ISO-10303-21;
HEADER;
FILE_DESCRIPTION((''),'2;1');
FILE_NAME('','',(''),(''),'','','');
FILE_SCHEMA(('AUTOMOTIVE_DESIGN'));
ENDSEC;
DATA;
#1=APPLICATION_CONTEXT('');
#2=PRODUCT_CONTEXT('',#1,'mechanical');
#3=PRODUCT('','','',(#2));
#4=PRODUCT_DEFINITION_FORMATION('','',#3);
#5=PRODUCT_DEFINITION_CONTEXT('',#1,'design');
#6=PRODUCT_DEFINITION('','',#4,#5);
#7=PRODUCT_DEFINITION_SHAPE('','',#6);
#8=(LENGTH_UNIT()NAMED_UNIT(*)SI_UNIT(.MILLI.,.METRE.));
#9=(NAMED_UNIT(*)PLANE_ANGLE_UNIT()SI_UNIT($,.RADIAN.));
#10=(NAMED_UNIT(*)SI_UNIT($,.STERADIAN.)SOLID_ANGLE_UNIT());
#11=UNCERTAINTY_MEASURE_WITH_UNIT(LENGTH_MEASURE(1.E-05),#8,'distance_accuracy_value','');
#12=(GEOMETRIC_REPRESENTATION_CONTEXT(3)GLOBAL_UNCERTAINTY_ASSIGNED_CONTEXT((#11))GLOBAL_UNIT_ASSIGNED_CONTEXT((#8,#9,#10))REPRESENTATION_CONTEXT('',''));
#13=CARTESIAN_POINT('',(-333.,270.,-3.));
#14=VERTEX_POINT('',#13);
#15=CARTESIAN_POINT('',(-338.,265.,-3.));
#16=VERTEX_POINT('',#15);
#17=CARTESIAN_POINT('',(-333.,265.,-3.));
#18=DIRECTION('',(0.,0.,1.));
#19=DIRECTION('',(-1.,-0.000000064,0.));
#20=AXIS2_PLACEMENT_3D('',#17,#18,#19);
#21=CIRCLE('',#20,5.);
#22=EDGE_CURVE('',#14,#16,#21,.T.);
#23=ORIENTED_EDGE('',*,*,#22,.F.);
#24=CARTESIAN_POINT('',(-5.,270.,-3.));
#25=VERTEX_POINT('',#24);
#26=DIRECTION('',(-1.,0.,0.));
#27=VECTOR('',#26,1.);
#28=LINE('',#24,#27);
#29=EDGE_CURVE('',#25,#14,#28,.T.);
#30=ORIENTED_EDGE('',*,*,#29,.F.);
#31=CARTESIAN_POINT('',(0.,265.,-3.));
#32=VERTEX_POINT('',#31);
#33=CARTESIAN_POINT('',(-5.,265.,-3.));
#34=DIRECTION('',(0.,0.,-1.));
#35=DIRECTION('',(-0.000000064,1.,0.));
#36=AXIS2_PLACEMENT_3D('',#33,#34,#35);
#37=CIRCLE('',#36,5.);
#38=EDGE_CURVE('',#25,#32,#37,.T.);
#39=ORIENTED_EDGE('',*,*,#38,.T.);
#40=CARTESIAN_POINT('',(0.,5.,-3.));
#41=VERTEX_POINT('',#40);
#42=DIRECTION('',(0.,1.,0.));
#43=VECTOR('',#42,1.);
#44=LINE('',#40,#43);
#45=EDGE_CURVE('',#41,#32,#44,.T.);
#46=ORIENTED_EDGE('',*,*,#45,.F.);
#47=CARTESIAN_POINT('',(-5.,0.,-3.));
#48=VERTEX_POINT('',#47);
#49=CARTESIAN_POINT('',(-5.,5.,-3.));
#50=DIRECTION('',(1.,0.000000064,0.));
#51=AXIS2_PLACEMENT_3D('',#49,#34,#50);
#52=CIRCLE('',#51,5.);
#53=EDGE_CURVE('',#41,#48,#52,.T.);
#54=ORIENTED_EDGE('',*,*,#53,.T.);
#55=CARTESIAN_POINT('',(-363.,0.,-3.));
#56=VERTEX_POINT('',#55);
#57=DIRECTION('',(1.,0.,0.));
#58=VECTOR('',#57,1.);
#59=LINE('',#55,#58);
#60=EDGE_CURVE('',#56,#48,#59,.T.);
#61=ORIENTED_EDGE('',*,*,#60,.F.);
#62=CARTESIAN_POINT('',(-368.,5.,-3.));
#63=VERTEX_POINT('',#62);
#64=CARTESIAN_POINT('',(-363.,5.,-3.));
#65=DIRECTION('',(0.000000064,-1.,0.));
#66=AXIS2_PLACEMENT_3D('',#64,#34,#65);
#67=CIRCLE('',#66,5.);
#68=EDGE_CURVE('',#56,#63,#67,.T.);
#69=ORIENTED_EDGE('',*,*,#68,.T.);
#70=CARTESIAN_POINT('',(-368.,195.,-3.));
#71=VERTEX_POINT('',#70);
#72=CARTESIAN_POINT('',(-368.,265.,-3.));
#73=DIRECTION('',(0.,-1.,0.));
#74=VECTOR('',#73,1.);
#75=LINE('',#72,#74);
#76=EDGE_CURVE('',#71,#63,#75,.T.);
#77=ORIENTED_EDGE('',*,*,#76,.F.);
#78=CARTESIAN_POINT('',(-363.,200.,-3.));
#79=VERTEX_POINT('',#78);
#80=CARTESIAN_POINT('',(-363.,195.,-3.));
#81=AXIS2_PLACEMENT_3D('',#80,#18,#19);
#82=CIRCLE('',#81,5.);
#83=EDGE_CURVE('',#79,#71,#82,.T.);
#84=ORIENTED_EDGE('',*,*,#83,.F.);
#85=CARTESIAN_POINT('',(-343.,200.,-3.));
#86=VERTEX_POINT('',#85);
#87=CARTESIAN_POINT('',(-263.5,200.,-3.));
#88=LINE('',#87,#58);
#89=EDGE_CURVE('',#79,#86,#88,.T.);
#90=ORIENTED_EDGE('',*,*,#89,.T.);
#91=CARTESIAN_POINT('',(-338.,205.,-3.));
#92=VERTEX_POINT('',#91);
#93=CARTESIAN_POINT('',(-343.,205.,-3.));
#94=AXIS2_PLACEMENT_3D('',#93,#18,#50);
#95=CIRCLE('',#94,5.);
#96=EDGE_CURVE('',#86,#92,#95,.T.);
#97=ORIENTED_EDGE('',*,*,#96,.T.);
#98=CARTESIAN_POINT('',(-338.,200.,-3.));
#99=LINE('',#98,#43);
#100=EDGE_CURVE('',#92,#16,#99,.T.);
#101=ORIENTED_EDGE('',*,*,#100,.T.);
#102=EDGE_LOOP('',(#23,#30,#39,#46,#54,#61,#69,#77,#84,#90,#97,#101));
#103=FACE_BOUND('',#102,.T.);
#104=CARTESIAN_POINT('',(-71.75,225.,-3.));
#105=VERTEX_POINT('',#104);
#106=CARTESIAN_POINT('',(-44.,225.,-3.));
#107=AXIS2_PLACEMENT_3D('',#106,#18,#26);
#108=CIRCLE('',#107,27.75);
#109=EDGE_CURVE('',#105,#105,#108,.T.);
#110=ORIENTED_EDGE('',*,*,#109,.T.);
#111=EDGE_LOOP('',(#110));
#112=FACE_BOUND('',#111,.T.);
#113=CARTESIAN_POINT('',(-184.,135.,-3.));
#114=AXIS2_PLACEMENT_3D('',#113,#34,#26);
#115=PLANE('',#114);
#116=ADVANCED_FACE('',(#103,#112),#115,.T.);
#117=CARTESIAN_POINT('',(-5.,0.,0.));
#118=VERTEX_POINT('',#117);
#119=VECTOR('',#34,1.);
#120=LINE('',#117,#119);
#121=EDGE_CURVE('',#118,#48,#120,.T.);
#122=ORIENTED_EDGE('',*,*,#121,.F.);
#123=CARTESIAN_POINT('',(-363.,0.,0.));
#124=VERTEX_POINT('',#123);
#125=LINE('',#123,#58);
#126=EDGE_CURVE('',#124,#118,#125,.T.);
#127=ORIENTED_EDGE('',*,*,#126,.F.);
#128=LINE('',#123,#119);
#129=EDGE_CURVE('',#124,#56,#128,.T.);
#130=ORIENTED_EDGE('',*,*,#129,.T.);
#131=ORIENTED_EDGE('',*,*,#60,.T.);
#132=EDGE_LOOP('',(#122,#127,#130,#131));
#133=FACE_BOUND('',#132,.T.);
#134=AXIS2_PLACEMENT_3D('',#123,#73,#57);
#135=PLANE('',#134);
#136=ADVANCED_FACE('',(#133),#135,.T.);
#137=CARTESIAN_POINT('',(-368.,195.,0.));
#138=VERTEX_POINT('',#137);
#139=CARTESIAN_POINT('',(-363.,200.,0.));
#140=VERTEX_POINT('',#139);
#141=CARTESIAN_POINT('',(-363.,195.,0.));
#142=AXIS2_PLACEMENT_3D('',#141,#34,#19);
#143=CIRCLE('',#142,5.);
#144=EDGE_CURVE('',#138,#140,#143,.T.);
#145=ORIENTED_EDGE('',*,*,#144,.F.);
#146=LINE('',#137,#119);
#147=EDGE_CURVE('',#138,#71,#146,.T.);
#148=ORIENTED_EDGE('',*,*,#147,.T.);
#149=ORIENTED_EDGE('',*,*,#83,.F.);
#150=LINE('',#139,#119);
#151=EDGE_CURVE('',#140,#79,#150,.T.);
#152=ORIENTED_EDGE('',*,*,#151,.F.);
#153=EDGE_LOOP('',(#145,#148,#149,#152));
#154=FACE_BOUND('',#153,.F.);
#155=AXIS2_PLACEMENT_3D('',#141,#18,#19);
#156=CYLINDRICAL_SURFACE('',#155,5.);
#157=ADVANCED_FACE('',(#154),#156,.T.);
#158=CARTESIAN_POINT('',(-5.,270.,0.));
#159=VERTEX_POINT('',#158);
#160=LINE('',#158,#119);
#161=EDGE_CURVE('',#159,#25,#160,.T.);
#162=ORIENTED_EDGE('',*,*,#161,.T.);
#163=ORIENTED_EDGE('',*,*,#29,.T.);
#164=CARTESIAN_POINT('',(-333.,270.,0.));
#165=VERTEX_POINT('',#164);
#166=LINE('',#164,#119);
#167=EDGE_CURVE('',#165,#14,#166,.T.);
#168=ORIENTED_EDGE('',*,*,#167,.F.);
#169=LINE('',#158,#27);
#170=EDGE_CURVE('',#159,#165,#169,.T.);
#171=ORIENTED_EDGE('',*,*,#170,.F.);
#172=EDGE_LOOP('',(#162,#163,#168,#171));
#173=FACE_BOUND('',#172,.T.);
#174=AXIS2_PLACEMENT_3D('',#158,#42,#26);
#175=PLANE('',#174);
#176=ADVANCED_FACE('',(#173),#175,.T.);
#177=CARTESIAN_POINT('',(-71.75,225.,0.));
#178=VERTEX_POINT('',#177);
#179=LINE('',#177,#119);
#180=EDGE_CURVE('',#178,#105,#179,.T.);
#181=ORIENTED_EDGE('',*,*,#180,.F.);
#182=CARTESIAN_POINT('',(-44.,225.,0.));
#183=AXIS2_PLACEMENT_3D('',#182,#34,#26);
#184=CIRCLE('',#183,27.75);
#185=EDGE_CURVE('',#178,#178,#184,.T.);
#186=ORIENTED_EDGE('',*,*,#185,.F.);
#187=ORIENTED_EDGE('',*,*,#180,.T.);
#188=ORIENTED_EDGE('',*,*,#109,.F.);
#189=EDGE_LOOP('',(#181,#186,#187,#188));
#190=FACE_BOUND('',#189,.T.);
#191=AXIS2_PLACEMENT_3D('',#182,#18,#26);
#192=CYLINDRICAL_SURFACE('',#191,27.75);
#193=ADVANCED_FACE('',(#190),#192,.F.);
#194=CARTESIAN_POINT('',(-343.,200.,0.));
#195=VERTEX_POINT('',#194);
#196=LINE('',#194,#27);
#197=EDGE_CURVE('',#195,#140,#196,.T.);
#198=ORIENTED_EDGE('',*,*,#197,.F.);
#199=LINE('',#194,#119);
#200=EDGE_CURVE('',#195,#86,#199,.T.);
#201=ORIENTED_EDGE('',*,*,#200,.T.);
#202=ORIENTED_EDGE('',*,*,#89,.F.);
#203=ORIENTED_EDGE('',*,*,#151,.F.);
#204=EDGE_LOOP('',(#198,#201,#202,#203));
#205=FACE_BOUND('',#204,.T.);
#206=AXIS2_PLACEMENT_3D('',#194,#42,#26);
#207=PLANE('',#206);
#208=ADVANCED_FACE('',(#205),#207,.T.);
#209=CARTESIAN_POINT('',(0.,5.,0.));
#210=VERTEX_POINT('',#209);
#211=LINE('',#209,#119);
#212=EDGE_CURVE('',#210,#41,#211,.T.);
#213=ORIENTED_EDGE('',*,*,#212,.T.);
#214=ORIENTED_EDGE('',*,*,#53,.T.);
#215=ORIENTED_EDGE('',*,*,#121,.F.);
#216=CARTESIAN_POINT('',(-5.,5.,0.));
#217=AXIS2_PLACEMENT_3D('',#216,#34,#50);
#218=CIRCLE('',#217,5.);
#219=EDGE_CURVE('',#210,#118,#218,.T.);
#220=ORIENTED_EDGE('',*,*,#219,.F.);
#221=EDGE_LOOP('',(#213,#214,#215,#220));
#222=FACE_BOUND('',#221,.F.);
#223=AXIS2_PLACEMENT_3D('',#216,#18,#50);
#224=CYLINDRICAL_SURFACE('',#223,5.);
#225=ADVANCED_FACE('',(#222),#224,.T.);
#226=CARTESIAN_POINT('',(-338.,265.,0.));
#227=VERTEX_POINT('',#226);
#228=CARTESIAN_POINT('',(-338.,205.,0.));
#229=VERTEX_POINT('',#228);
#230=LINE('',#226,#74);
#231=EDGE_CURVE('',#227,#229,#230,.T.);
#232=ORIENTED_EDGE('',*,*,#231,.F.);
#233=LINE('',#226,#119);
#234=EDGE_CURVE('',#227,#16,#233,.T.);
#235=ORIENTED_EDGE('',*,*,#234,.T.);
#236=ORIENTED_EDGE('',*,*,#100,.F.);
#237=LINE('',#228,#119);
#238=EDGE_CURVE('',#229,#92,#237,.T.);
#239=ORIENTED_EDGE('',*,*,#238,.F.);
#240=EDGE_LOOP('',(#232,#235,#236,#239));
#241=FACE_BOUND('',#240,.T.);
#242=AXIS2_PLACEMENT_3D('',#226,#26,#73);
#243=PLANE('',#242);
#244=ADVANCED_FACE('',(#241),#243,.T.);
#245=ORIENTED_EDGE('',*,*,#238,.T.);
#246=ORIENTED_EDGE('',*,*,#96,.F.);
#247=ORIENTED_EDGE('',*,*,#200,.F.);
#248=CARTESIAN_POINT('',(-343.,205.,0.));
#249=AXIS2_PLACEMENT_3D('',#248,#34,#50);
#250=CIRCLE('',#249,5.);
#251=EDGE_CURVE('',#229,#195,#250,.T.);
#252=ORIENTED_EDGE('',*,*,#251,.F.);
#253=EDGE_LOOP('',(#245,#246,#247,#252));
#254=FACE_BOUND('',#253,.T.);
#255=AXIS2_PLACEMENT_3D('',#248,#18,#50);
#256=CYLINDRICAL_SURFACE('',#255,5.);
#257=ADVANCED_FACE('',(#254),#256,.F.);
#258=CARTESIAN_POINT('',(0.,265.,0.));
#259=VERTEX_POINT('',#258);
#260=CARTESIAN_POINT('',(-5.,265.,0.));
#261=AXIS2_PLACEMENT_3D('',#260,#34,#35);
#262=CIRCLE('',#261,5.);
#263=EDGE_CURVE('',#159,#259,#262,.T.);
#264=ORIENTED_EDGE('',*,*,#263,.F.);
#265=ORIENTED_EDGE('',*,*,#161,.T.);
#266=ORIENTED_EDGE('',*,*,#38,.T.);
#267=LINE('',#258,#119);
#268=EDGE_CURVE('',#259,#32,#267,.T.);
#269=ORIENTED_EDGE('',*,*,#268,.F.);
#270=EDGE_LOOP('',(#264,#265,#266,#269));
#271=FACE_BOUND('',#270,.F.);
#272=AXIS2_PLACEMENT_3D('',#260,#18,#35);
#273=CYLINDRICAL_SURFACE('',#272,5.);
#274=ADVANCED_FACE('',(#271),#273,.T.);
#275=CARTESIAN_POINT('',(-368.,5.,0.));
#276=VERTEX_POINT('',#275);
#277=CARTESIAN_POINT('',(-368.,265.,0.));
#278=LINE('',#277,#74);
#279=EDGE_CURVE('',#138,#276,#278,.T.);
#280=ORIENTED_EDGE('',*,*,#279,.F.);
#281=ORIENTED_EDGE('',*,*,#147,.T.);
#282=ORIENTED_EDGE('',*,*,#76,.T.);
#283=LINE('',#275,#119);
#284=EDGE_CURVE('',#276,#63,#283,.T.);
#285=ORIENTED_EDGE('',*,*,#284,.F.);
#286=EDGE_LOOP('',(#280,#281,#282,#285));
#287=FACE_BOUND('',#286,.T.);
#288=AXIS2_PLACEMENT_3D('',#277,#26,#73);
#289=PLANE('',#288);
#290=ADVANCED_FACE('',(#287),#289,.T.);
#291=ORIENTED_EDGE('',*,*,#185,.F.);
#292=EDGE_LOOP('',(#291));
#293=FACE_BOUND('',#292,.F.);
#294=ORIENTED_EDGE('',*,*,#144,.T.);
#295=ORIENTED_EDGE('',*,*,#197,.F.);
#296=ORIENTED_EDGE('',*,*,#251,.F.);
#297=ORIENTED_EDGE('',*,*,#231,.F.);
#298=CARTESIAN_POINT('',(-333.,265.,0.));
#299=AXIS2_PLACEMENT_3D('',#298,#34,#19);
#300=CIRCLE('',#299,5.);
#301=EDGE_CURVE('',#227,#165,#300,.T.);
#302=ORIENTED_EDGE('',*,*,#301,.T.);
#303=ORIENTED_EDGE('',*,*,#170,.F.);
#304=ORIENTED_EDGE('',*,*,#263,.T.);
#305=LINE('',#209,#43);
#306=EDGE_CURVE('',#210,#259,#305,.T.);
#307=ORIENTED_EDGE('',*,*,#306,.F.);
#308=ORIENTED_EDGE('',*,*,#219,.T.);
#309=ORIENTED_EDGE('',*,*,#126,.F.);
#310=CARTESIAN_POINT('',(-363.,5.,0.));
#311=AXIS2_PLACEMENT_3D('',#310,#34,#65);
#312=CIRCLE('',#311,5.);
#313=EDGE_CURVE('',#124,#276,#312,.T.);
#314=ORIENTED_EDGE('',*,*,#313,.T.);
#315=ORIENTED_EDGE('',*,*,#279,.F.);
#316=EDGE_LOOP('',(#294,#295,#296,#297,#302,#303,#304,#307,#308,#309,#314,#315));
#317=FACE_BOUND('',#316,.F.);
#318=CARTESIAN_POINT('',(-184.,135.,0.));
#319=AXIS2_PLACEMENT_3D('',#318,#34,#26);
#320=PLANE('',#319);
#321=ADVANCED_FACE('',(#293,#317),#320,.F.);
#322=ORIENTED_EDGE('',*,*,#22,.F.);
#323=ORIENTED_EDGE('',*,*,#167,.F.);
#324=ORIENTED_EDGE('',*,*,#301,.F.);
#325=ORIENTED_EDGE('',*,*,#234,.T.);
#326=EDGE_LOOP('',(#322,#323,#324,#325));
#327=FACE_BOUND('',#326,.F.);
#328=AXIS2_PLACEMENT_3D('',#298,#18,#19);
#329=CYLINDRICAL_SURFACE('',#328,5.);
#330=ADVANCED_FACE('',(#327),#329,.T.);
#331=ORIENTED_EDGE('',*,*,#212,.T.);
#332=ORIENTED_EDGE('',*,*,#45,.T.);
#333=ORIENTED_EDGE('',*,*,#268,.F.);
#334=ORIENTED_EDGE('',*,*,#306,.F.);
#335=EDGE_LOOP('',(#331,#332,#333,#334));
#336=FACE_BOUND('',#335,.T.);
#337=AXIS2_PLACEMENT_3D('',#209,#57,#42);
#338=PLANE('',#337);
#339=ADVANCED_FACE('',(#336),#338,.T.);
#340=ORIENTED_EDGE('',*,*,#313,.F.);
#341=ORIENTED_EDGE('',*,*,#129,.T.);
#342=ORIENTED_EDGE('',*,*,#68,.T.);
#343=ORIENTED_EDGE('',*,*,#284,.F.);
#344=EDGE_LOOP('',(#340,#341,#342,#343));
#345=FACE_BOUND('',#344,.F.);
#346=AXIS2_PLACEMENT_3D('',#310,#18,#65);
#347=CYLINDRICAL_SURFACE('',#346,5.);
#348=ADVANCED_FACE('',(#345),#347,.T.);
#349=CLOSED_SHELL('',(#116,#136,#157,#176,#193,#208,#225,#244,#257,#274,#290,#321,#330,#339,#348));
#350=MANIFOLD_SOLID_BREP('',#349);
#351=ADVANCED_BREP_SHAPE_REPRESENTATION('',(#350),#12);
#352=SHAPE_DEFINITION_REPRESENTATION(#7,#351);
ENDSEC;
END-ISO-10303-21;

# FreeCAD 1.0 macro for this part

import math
import FreeCAD as App
import Part
import Sketcher

V = App.Vector

doc = App.newDocument("Part")
body = doc.addObject("PartDesign::Body", "Body")

sketch1 = doc.addObject("Sketcher::SketchObject", "Sketch")
body.addObject(sketch1)
sketch1.AttachmentSupport = (doc.XY_Plane, [""])
sketch1.MapMode = "FlatFace"
sketch1.addGeometry([
    Part.ArcOfCircle(Part.Circle(V(-179, -130, 0), V(0, 0, 1), 5), math.radians(180), math.radians(270)),
    Part.LineSegment(V(-179, -135, 0), V(179, -135, 0)),
    Part.ArcOfCircle(Part.Circle(V(179, -130, 0), V(0, 0, 1), 5), math.radians(-90), math.radians(0)),
    Part.LineSegment(V(184, -130, 0), V(184, 130, 0)),
    Part.ArcOfCircle(Part.Circle(V(179, 130, 0), V(0, 0, 1), 5), math.radians(0), math.radians(90)),
    Part.LineSegment(V(179, 135, 0), V(-179, 135, 0)),
    Part.ArcOfCircle(Part.Circle(V(-179, 130, 0), V(0, 0, 1), 5), math.radians(90), math.radians(180)),
    Part.LineSegment(V(-184, 130, 0), V(-184, -130, 0)),
], False)
sketch1.addConstraint([
    Sketcher.Constraint("Tangent", 0, 2, 1, 1),
    Sketcher.Constraint("Tangent", 1, 2, 2, 1),
    Sketcher.Constraint("Tangent", 2, 2, 3, 1),
    Sketcher.Constraint("Tangent", 3, 2, 4, 1),
    Sketcher.Constraint("Tangent", 4, 2, 5, 1),
    Sketcher.Constraint("Tangent", 5, 2, 6, 1),
    Sketcher.Constraint("Tangent", 6, 2, 7, 1),
    Sketcher.Constraint("Tangent", 7, 2, 0, 1),
    Sketcher.Constraint("Horizontal", 1),
    Sketcher.Constraint("Vertical", 3),
    Sketcher.Constraint("Horizontal", 5),
    Sketcher.Constraint("Vertical", 7),
    Sketcher.Constraint("Equal", 0, 2),
    Sketcher.Constraint("Equal", 2, 4),
    Sketcher.Constraint("Equal", 4, 6),
    Sketcher.Constraint("Symmetric", 0, 3, 4, 3, -1, 1),
    Sketcher.Constraint("Radius", 0, 5.0),
    Sketcher.Constraint("DistanceX", 1, 1, 1, 2, 358.0),
    Sketcher.Constraint("DistanceY", 3, 1, 3, 2, 260.0),
])
pad1 = doc.addObject("PartDesign::Pad", "Pad")
body.addObject(pad1)
pad1.Profile = sketch1
pad1.Length = 3

sketch2 = doc.addObject("Sketcher::SketchObject", "Sketch001")
body.addObject(sketch2)
sketch2.AttachmentSupport = (doc.XY_Plane, [""])
sketch2.MapMode = "FlatFace"
sketch2.addGeometry(Part.Circle(V(-140, 90, 0), V(0, 0, 1), 28), False)
sketch2.addConstraint([
    Sketcher.Constraint("Diameter", 0, 55.5),
    Sketcher.Constraint("DistanceX", 0, 3, -1, 1, 140.0),
    Sketcher.Constraint("DistanceY", -1, 1, 0, 3, 90.0),
])
pocket1 = doc.addObject("PartDesign::Pocket", "Pocket")
body.addObject(pocket1)
pocket1.Profile = sketch2
pocket1.Type = "ThroughAll"
pocket1.Midplane = True

sketch3 = doc.addObject("Sketcher::SketchObject", "Sketch002")
body.addObject(sketch3)
sketch3.AttachmentSupport = (doc.XY_Plane, [""])
sketch3.MapMode = "FlatFace"
sketch3.addGeometry([
    Part.LineSegment(V(184, 135, 0), V(149, 135, 0)),
    Part.ArcOfCircle(Part.Circle(V(149, 130, 0), V(0, 0, 1), 5), math.radians(0), math.radians(90)),
    Part.LineSegment(V(154, 130, 0), V(154, 70, 0)),
    Part.ArcOfCircle(Part.Circle(V(159, 70, 0), V(0, 0, 1), 5), math.radians(180), math.radians(270)),
    Part.LineSegment(V(159, 65, 0), V(179, 65, 0)),
    Part.ArcOfCircle(Part.Circle(V(179, 60, 0), V(0, 0, 1), 5), math.radians(0), math.radians(90)),
    Part.LineSegment(V(184, 60, 0), V(184, 135, 0)),
], False)
sketch3.addConstraint([
    Sketcher.Constraint("Tangent", 0, 2, 1, 2),
    Sketcher.Constraint("Tangent", 1, 1, 2, 1),
    Sketcher.Constraint("Tangent", 2, 2, 3, 1),
    Sketcher.Constraint("Tangent", 3, 2, 4, 1),
    Sketcher.Constraint("Tangent", 4, 2, 5, 2),
    Sketcher.Constraint("Tangent", 5, 1, 6, 1),
    Sketcher.Constraint("Coincident", 6, 2, 0, 1),
    Sketcher.Constraint("Horizontal", 0),
    Sketcher.Constraint("Vertical", 2),
    Sketcher.Constraint("Horizontal", 4),
    Sketcher.Constraint("Vertical", 6),
    Sketcher.Constraint("Equal", 1, 3),
    Sketcher.Constraint("Equal", 3, 5),
    Sketcher.Constraint("Radius", 1, 5.0),
    Sketcher.Constraint("DistanceX", 0, 2, 0, 1, 35.0),
    Sketcher.Constraint("DistanceY", 2, 2, 2, 1, 60.0),
    Sketcher.Constraint("DistanceX", -1, 1, 1, 3, 149.0),
    Sketcher.Constraint("DistanceY", -1, 1, 1, 3, 130.0),
])
pocket2 = doc.addObject("PartDesign::Pocket", "Pocket001")
body.addObject(pocket2)
pocket2.Profile = sketch3
pocket2.Type = "ThroughAll"
pocket2.Midplane = True
body2 = doc.addObject("PartDesign::Body", "Body001")
doc.recompute()

body.Placement = App.Placement(V(0, 0, 0), App.Rotation(V(0, 0, 1), 90))
boolean = doc.addObject("PartDesign::Boolean", "Boolean")
body2.addObject(boolean)
boolean.Type = "Fuse"
boolean.addObjects([body])
body3 = doc.addObject("PartDesign::Body", "Body002")
doc.recompute()

body2.Placement = App.Placement(V(0, 0, 0), App.Rotation(V(1, 0, 0), 180))
boolean2 = doc.addObject("PartDesign::Boolean", "Boolean001")
body3.addObject(boolean2)
boolean2.Type = "Fuse"
boolean2.addObjects([body2])
body4 = doc.addObject("PartDesign::Body", "Body003")
doc.recompute()

body3.Placement = App.Placement(V(-184, 135, 0), App.Rotation(V(0, 0, 1), 270))
boolean3 = doc.addObject("PartDesign::Boolean", "Boolean002")
body4.addObject(boolean3)
boolean3.Type = "Fuse"
boolean3.addObjects([body3])

doc.recompute()
